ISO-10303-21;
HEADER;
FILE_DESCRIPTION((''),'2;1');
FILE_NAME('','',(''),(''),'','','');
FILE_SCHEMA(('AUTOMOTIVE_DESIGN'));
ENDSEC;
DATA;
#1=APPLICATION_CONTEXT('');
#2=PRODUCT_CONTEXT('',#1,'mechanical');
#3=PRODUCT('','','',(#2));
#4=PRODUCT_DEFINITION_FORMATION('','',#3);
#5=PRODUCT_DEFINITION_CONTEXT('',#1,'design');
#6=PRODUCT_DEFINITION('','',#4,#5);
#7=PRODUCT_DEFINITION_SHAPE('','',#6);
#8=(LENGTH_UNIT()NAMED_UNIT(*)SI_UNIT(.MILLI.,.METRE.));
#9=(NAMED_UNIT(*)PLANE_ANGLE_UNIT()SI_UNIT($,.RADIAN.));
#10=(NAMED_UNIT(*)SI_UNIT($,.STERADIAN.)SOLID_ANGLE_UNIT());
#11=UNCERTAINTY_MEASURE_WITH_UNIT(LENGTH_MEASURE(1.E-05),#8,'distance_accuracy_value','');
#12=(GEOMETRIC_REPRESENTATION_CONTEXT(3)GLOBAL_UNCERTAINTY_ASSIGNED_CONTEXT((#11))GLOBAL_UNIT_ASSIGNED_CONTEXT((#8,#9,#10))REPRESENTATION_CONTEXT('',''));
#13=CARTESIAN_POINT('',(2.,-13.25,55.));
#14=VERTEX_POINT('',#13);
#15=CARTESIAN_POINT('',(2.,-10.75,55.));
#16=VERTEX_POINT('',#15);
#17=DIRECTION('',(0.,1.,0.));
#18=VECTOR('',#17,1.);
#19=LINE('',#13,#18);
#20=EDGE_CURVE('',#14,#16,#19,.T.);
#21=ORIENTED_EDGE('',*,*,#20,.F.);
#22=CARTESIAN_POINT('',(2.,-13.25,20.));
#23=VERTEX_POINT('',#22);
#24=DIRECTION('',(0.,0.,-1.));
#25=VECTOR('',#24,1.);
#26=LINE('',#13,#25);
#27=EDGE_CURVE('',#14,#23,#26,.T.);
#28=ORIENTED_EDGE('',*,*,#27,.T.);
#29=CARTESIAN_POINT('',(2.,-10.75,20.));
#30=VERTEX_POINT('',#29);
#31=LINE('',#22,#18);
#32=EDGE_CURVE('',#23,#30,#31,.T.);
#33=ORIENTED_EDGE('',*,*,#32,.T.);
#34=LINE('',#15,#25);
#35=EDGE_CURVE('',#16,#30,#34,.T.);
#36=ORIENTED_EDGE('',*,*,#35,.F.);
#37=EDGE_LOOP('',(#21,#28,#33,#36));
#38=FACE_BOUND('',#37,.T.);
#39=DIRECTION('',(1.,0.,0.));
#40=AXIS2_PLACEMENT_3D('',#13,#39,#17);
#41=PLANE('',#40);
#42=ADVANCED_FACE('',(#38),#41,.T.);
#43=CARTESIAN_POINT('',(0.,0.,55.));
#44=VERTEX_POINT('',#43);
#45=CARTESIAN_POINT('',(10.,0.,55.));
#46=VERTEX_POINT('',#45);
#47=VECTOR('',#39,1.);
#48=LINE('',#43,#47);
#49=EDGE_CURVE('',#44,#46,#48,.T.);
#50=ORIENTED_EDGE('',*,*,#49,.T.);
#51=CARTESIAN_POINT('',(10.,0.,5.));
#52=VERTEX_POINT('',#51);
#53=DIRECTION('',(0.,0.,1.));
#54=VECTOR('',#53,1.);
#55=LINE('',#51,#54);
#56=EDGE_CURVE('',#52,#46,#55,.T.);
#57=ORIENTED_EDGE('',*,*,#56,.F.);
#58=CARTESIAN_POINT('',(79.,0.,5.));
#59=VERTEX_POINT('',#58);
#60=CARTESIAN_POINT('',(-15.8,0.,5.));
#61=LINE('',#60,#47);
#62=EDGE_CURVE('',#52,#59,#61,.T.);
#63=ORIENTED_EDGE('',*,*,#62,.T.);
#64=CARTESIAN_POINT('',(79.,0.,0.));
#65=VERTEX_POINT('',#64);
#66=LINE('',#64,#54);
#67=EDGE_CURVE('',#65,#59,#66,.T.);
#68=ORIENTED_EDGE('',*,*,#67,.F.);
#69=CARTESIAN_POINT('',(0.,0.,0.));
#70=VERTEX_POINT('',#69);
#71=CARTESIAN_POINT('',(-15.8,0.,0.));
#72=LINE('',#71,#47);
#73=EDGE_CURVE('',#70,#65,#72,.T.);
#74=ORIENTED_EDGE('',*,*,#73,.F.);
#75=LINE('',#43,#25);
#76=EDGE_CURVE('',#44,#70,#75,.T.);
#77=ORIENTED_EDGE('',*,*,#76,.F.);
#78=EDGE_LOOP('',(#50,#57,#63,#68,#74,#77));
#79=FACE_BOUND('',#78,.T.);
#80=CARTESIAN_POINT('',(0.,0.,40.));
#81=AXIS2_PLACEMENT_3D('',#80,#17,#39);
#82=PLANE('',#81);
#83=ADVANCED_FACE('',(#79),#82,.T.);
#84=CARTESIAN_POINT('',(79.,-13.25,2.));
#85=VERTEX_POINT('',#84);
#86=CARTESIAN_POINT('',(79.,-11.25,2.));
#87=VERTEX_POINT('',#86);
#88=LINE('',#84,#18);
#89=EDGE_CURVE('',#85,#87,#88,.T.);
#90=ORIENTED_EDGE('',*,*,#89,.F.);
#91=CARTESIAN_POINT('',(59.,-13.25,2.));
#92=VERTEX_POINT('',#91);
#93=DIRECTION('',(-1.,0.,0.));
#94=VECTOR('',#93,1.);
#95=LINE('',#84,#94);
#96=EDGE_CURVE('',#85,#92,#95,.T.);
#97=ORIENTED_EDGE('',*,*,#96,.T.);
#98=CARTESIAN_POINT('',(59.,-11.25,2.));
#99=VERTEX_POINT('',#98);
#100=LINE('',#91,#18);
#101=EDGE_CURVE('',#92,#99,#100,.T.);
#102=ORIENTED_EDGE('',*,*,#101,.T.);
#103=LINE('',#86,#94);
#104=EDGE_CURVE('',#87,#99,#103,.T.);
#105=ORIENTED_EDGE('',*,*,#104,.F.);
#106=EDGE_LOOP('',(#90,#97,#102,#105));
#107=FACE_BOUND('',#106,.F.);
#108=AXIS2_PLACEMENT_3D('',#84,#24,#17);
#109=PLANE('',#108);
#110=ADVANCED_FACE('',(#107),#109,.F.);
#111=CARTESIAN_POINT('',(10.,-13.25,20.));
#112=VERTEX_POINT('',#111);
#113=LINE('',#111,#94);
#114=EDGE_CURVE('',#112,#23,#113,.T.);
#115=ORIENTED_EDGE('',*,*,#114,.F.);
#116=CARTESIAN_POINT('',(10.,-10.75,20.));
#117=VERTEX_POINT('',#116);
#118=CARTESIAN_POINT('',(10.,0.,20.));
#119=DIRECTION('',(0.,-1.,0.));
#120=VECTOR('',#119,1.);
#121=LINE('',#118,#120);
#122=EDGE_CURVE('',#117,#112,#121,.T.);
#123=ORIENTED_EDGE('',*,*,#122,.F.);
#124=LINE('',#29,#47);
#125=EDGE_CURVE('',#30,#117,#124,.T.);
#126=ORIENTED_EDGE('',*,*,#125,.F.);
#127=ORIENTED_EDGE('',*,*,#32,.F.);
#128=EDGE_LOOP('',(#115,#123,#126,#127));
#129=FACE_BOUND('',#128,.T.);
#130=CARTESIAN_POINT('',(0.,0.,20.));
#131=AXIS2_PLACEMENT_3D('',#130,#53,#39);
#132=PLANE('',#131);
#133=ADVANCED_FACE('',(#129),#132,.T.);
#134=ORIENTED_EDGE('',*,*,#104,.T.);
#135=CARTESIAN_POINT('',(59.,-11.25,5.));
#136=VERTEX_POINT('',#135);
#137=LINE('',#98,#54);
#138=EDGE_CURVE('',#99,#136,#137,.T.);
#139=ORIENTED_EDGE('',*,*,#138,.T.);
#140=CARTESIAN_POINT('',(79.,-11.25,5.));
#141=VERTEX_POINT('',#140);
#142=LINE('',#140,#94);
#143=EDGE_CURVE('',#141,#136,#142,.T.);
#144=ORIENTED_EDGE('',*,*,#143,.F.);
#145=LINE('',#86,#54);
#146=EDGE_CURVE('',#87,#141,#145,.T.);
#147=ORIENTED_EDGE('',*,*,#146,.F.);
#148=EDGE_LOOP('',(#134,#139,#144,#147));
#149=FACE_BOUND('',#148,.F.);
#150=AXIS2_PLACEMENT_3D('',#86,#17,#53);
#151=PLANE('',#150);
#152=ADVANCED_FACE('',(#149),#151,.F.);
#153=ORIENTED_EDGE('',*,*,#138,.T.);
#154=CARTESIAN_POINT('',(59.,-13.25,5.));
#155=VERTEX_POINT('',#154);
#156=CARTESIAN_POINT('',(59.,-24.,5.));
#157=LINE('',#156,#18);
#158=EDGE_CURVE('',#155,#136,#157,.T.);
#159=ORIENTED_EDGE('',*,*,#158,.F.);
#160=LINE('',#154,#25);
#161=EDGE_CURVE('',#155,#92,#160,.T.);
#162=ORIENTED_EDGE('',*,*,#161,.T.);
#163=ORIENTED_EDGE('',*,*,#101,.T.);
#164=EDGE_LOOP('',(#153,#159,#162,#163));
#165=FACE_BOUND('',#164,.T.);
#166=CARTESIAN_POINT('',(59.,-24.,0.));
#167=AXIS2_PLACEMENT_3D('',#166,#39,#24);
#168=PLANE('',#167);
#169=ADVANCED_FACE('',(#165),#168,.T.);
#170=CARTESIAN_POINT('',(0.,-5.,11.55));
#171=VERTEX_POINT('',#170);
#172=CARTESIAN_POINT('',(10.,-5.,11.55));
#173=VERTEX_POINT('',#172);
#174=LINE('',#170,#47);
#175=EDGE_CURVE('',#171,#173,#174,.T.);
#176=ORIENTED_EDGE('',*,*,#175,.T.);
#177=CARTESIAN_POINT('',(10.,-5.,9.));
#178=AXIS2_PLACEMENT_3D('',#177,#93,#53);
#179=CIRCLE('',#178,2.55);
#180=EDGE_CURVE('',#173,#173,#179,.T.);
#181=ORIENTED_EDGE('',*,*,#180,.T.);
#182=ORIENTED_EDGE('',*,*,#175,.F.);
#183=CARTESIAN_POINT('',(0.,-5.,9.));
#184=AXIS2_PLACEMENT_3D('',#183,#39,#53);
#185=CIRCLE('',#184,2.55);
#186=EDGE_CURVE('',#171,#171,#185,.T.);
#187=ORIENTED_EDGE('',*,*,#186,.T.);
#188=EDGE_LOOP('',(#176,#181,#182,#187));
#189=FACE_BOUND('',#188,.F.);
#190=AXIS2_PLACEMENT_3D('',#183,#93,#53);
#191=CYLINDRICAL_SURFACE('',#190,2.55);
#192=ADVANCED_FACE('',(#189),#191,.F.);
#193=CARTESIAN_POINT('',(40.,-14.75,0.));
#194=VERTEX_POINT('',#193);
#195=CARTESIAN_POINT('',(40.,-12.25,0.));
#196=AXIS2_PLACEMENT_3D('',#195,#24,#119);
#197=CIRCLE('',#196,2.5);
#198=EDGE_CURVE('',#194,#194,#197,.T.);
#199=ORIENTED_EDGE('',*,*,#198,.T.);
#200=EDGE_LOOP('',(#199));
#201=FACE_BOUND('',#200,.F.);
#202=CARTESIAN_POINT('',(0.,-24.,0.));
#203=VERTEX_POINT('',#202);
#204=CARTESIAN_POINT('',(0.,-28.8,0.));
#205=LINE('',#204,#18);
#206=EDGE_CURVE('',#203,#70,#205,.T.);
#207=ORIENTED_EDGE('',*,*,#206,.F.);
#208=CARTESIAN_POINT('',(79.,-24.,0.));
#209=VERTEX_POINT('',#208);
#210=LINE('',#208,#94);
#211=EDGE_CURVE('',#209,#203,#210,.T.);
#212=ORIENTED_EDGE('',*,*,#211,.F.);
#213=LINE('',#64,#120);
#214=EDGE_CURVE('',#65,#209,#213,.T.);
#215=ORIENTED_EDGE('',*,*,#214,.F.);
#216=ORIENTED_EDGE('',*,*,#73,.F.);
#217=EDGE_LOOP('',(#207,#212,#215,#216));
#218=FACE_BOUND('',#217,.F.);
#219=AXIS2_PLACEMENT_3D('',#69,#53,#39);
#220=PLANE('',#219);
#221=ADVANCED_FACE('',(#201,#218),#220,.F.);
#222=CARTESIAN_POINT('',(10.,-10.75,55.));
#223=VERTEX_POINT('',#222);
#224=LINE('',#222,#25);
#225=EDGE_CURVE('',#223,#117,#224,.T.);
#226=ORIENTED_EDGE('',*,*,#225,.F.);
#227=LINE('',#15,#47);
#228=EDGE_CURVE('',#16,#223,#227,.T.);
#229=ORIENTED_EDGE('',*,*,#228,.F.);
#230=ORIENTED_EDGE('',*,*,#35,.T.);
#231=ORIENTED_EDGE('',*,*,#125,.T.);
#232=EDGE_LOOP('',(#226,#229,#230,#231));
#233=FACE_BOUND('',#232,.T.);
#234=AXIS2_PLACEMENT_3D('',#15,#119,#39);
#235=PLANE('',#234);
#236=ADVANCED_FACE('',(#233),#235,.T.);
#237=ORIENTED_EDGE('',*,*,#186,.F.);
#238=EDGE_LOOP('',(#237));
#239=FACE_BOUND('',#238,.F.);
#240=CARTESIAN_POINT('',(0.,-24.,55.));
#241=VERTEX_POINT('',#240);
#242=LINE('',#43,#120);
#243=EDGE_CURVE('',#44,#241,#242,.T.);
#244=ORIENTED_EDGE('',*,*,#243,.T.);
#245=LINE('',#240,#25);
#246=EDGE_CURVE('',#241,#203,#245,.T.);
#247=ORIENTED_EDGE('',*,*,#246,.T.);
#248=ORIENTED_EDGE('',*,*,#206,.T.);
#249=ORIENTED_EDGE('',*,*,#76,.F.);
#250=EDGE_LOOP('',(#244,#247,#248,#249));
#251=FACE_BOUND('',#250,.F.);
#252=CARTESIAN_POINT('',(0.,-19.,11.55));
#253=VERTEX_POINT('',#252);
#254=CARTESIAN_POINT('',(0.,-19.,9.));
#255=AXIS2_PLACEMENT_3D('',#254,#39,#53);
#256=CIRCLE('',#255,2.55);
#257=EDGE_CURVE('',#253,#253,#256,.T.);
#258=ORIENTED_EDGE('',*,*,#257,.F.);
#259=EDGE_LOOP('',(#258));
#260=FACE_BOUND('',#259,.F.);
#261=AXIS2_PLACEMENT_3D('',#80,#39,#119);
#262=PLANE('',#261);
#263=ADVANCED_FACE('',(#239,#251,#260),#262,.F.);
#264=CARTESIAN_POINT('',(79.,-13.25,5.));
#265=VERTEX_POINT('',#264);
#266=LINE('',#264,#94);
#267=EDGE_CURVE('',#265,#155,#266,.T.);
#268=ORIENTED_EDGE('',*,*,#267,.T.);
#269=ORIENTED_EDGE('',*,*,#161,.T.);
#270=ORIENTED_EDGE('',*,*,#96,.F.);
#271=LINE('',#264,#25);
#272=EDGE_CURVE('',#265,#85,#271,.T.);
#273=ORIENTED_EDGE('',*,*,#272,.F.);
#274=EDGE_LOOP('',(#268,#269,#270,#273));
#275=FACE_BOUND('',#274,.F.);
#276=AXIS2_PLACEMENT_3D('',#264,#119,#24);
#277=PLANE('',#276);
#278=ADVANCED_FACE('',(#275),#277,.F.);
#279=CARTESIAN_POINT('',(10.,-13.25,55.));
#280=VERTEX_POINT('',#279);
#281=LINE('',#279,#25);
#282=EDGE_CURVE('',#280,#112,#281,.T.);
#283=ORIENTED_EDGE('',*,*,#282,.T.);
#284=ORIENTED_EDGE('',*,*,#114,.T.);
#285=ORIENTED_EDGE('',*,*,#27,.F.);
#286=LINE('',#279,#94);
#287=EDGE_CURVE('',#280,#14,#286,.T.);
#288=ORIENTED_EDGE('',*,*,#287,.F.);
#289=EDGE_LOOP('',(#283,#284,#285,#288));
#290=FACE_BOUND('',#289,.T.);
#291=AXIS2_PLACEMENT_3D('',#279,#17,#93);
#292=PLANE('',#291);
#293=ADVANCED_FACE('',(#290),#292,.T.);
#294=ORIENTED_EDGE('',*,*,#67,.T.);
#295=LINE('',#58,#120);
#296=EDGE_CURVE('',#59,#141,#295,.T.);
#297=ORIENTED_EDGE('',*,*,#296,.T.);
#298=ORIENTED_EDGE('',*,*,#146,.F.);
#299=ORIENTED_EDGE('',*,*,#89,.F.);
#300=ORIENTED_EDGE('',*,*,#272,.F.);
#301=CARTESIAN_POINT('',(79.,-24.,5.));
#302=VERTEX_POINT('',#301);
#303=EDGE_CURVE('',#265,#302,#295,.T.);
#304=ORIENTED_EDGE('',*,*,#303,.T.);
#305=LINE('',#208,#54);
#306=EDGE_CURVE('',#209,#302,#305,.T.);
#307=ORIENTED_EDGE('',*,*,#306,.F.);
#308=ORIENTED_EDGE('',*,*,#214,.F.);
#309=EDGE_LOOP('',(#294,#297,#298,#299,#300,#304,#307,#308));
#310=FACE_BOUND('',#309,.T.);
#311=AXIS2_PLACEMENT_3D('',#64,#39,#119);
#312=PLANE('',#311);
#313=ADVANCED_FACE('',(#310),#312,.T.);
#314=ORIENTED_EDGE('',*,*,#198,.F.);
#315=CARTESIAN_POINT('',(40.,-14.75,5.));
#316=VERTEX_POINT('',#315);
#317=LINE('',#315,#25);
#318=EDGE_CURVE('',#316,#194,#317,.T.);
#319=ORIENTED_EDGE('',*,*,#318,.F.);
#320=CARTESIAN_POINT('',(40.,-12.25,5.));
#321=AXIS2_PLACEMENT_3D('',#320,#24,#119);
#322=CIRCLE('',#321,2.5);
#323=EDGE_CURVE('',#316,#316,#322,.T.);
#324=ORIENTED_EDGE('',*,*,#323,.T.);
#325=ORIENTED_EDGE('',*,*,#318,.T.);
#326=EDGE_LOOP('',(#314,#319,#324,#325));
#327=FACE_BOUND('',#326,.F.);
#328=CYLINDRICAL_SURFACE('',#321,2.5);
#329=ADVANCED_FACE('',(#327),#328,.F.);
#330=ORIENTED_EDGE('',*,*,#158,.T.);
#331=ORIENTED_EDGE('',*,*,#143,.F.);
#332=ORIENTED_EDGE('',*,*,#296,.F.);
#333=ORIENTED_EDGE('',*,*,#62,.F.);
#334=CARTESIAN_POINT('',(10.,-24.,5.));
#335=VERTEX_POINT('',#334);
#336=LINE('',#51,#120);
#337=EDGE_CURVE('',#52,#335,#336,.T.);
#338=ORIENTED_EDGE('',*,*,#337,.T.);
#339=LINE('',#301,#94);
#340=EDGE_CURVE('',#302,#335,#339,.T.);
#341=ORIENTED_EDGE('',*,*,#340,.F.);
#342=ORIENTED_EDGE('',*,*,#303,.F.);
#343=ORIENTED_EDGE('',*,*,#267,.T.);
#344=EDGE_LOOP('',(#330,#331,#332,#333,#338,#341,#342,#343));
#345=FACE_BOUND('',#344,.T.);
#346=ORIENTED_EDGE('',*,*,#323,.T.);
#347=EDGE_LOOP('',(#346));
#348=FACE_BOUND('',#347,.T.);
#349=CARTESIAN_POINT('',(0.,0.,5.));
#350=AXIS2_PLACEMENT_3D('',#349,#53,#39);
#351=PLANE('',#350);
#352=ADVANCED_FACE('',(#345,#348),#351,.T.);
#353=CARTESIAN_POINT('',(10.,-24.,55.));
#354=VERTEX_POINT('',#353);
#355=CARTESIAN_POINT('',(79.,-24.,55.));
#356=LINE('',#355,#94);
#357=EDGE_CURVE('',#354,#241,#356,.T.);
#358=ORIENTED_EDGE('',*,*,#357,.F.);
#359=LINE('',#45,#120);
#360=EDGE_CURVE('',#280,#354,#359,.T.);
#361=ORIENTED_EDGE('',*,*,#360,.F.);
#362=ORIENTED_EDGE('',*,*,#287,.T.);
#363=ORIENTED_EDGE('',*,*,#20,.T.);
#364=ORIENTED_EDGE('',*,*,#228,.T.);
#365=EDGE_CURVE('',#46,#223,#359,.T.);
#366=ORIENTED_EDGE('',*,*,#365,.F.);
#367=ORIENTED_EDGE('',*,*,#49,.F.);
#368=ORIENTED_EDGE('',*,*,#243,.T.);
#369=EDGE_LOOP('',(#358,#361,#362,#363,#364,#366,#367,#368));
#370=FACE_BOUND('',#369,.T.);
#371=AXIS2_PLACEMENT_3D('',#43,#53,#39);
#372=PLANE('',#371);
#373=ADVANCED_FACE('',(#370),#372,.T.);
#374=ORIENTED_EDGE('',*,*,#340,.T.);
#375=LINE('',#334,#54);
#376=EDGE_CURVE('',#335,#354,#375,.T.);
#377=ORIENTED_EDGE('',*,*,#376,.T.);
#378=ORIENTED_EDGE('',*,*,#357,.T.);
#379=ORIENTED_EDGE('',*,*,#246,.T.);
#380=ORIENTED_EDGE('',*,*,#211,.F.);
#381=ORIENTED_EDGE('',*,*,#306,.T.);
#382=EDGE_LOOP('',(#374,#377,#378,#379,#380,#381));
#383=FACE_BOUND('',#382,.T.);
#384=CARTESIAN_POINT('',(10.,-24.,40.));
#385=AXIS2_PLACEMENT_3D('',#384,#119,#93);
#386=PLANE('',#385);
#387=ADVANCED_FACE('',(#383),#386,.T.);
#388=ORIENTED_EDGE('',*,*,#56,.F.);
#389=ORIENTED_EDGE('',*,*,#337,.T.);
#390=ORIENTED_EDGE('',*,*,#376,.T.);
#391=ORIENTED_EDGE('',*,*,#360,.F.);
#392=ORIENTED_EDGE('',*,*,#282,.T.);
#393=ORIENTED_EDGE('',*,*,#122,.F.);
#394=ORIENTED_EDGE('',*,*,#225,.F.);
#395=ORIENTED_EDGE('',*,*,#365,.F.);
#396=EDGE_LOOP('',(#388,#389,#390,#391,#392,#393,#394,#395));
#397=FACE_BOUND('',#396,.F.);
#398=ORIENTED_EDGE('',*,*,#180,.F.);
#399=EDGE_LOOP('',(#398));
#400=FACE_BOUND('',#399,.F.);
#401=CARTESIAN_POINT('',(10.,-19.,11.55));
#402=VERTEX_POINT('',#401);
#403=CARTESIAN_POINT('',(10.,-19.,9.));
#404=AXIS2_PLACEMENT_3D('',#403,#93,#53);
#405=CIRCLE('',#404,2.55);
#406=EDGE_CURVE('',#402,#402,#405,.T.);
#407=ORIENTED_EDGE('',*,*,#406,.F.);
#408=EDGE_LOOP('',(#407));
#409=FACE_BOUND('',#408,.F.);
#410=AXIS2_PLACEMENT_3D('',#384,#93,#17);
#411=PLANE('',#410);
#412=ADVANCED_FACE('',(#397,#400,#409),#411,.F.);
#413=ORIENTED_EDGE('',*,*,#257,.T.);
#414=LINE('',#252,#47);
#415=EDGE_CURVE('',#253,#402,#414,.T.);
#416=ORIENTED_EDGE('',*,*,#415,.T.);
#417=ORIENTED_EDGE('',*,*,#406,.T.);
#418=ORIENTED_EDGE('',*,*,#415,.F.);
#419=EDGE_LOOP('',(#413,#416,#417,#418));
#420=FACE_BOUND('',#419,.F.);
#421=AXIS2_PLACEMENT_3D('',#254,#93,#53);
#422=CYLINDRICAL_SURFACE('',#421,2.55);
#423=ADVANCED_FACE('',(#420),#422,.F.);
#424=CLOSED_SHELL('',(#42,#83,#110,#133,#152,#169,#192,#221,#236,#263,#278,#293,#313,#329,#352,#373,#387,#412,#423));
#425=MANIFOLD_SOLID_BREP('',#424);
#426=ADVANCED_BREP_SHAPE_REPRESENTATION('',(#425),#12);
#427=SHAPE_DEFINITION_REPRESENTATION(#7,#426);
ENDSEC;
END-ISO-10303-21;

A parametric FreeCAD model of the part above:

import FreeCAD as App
import Part
import Sketcher
from FreeCAD import Vector


def add_polygon(sketch, points):
    """Adds a closed chain of lines whose ends are joined by coincident constraints."""
    first, n = sketch.GeometryCount, len(points)
    for a, b in zip(points, points[1:] + points[:1]):
        sketch.addGeometry(Part.LineSegment(App.Vector(*a, 0), App.Vector(*b, 0)), False)
    for i in range(n):
        sketch.addConstraint(Sketcher.Constraint("Coincident", first + i, 2, first + (i + 1) % n, 1))

doc = App.newDocument("Part")
body = doc.addObject("PartDesign::Body", "Body")

sketch1 = body.newObject("Sketcher::SketchObject", "Sketch")
sketch1.AttachmentSupport = (doc.getObject("XY_Plane"), [""])
sketch1.MapMode = "FlatFace"
add_polygon(sketch1, [(79, 0), (0, 0), (0, -24), (79, -24)])
sketch1.addConstraint([
    Sketcher.Constraint("Horizontal", 0),
    Sketcher.Constraint("Vertical", 1),
    Sketcher.Constraint("Horizontal", 2),
    Sketcher.Constraint("Vertical", 3),
    Sketcher.Constraint("Coincident", 0, 2, -1, 1),
    Sketcher.Constraint("DistanceX", 0, 2, 0, 1, 79.0),
    Sketcher.Constraint("DistanceY", 1, 2, 1, 1, 24.0),
])
pad1 = body.newObject("PartDesign::Pad", "Pad")
pad1.Profile = sketch1
pad1.Length = 5

sketch2 = body.newObject("Sketcher::SketchObject", "Sketch001")
sketch2.AttachmentSupport = (doc.getObject("XY_Plane"), [""])
sketch2.MapMode = "FlatFace"
sketch2.AttachmentOffset = App.Placement(Vector(0, 0, 5), App.Rotation())
add_polygon(sketch2, [(0, 0), (0, -24), (10, -24), (10, 0)])
sketch2.addConstraint([
    Sketcher.Constraint("Vertical", 0),
    Sketcher.Constraint("Horizontal", 1),
    Sketcher.Constraint("Vertical", 2),
    Sketcher.Constraint("Horizontal", 3),
    Sketcher.Constraint("Coincident", 3, 2, -1, 1),
    Sketcher.Constraint("DistanceX", 1, 1, 1, 2, 10.0),
    Sketcher.Constraint("DistanceY", 0, 2, 0, 1, 24.0),
])
pad2 = body.newObject("PartDesign::Pad", "Pad001")
pad2.Profile = sketch2
pad2.Length = 35

sketch3 = body.newObject("Sketcher::SketchObject", "Sketch002")
sketch3.AttachmentSupport = (doc.getObject("YZ_Plane"), [""])
sketch3.MapMode = "FlatFace"
sketch3.AttachmentOffset = App.Placement(Vector(0, 0, 79), App.Rotation())
add_polygon(sketch3, [(-11.2, 5), (-13.2, 5), (-13.2, 2), (-11.2, 2)])
sketch3.addConstraint([
    Sketcher.Constraint("Horizontal", 0),
    Sketcher.Constraint("Vertical", 1),
    Sketcher.Constraint("Horizontal", 2),
    Sketcher.Constraint("Vertical", 3),
    Sketcher.Constraint("DistanceX", 0, 2, 0, 1, 2.0),
    Sketcher.Constraint("DistanceY", 1, 2, 1, 1, 3.0),
    Sketcher.Constraint("DistanceY", -1, 1, 1, 2, 2.0),
    Sketcher.Constraint("DistanceX", 2, 2, -1, 1, 11.25),
])
pocket1 = body.newObject("PartDesign::Pocket", "Pocket")
pocket1.Profile = sketch3
pocket1.Length = 20

sketch4 = body.newObject("Sketcher::SketchObject", "Sketch003")
sketch4.AttachmentSupport = (doc.getObject("XY_Plane"), [""])
sketch4.MapMode = "FlatFace"
sketch4.AttachmentOffset = App.Placement(Vector(0, 0, 5), App.Rotation())
sketch4.addGeometry(Part.Circle(Vector(40, -12.2, 0), Vector(0, 0, 1), 2.5), False)
sketch4.addConstraint([
    Sketcher.Constraint("Diameter", 0, 5.0),
    Sketcher.Constraint("DistanceX", -1, 1, 0, 3, 40.0),
    Sketcher.Constraint("DistanceY", 0, 3, -1, 1, 12.25),
])
doc.recompute()
hole = body.newObject("PartDesign::Hole", "Hole")
hole.Profile = sketch4
hole.ThreadType = "None"
hole.Diameter = 5
hole.DepthType = "ThroughAll"

sketch5 = body.newObject("Sketcher::SketchObject", "Sketch004")
sketch5.AttachmentSupport = (doc.getObject("YZ_Plane"), [""])
sketch5.MapMode = "FlatFace"
sketch5.addGeometry([
    Part.Circle(Vector(-5, 9, 0), Vector(0, 0, 1), 2.5),
    Part.Circle(Vector(-19, 9, 0), Vector(0, 0, 1), 2.5),
], False)
sketch5.addConstraint([
    Sketcher.Constraint("Equal", 0, 1),
    Sketcher.Constraint("Horizontal", 0, 3, 1, 3),
    Sketcher.Constraint("Diameter", 0, 5.1),
    Sketcher.Constraint("DistanceX", 0, 3, -1, 1, 5.0),
    Sketcher.Constraint("DistanceY", -1, 1, 0, 3, 9.0),
    Sketcher.Constraint("DistanceX", 1, 3, -1, 1, 19.0),
])
pocket2 = body.newObject("PartDesign::Pocket", "Pocket001")
pocket2.Profile = sketch5
pocket2.Length = 30
pocket2.Reversed = True

sketch6 = body.newObject("Sketcher::SketchObject", "Sketch005")
sketch6.AttachmentSupport = (doc.getObject("XY_Plane"), [""])
sketch6.MapMode = "FlatFace"
sketch6.AttachmentOffset = App.Placement(Vector(0, 0, 40), App.Rotation())
add_polygon(sketch6, [(0, -24), (10, -24), (10, -13.2), (2, -13.2), (2, -11.2), (10, -11.2), (10, 0), (0, 0)])
sketch6.addConstraint([
    Sketcher.Constraint("Horizontal", 0),
    Sketcher.Constraint("Vertical", 1),
    Sketcher.Constraint("Horizontal", 2),
    Sketcher.Constraint("Vertical", 3),
    Sketcher.Constraint("Horizontal", 4),
    Sketcher.Constraint("Vertical", 5),
    Sketcher.Constraint("Horizontal", 6),
    Sketcher.Constraint("Vertical", 7),
    Sketcher.Constraint("Coincident", 6, 2, -1, 1),
    Sketcher.Constraint("Vertical", 1, 2, 4, 2),
    Sketcher.Constraint("DistanceX", 0, 1, 0, 2, 10.0),
    Sketcher.Constraint("DistanceX", 2, 2, 2, 1, 8.0),
    Sketcher.Constraint("DistanceY", 3, 1, 3, 2, 2.0),
    Sketcher.Constraint("DistanceY", 7, 2, 7, 1, 24.0),
    Sketcher.Constraint("DistanceY", 1, 1, 1, 2, 10.75),
])
pad3 = body.newObject("PartDesign::Pad", "Pad002")
pad3.Profile = sketch6
pad3.Length = 15

sketch7 = body.newObject("Sketcher::SketchObject", "Sketch006")
sketch7.AttachmentSupport = (doc.getObject("XY_Plane"), [""])
sketch7.MapMode = "FlatFace"
sketch7.AttachmentOffset = App.Placement(Vector(0, 0, 55), App.Rotation())
add_polygon(sketch7, [(10, -13.2), (10, -11.2), (2, -11.2), (2, -13.2)])
sketch7.addConstraint([
    Sketcher.Constraint("Vertical", 0),
    Sketcher.Constraint("Horizontal", 1),
    Sketcher.Constraint("Vertical", 2),
    Sketcher.Constraint("Horizontal", 3),
    Sketcher.Constraint("DistanceX", 1, 2, 1, 1, 8.0),
    Sketcher.Constraint("DistanceY", 0, 1, 0, 2, 2.0),
    Sketcher.Constraint("DistanceX", -1, 1, 0, 2, 10.0),
    Sketcher.Constraint("DistanceY", 0, 2, -1, 1, 11.25),
])
pad4 = body.newObject("PartDesign::Pad", "Pad003")
pad4.Profile = sketch7
pad4.Length = 35
pad4.Reversed = True

sketch8 = body.newObject("Sketcher::SketchObject", "Sketch007")
sketch8.AttachmentSupport = (doc.getObject("XY_Plane"), [""])
sketch8.MapMode = "FlatFace"
sketch8.AttachmentOffset = App.Placement(Vector(0, 0, 55), App.Rotation())
add_polygon(sketch8, [(10, -13.2), (10, -10.8), (2, -10.8), (2, -13.2)])
sketch8.addConstraint([
    Sketcher.Constraint("Vertical", 0),
    Sketcher.Constraint("Horizontal", 1),
    Sketcher.Constraint("Vertical", 2),
    Sketcher.Constraint("Horizontal", 3),
    Sketcher.Constraint("DistanceX", 1, 2, 1, 1, 8.0),
    Sketcher.Constraint("DistanceY", 0, 2, -1, 1, 10.75),
    Sketcher.Constraint("DistanceY", 0, 1, 0, 2, 2.5),
    Sketcher.Constraint("DistanceX", -1, 1, 0, 2, 10.0),
])
pocket3 = body.newObject("PartDesign::Pocket", "Pocket002")
pocket3.Profile = sketch8
pocket3.Length = 35

doc.recompute()
